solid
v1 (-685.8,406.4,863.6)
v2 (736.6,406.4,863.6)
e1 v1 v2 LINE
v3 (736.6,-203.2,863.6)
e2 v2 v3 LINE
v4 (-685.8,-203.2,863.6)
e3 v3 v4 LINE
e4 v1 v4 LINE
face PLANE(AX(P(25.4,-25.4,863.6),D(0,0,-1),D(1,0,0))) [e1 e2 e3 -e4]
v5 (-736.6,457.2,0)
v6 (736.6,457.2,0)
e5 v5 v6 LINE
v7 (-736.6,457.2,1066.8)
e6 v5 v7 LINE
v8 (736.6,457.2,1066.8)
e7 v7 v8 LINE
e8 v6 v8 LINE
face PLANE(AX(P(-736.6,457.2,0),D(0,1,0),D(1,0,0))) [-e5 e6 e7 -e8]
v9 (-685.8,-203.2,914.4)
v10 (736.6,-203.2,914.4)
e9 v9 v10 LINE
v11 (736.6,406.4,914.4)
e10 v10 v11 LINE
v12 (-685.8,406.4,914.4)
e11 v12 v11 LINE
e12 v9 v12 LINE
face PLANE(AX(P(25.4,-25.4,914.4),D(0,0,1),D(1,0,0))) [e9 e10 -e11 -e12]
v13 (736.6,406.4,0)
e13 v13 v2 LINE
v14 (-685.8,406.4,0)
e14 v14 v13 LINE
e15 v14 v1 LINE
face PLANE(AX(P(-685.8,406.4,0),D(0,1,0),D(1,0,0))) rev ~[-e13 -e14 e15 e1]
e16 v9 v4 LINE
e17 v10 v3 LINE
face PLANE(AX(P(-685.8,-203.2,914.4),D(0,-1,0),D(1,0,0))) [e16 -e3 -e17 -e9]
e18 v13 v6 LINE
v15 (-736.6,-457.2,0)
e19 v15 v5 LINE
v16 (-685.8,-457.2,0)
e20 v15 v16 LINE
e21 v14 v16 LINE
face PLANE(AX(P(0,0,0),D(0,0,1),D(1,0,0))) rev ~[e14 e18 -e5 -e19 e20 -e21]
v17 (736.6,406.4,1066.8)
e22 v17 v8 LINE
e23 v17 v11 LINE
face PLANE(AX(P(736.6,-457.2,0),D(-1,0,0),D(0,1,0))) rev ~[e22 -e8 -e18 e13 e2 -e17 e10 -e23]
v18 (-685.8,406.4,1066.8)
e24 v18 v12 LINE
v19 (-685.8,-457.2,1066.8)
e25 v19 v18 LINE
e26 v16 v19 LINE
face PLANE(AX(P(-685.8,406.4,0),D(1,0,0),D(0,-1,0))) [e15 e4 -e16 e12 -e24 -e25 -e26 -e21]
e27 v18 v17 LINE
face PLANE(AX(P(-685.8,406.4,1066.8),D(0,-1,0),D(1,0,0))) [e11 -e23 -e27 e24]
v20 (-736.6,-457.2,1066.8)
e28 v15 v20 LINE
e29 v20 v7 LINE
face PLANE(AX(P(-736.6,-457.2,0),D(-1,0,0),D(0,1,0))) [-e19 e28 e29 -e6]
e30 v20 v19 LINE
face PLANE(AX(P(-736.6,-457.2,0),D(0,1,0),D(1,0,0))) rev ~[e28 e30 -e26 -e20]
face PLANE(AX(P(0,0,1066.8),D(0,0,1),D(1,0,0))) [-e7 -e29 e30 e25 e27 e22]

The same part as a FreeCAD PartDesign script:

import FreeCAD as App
import Part
import Sketcher
from FreeCAD import Vector
Q = App.Units.Quantity


def add_polygon(sketch, points):
    """Adds a closed chain of lines whose ends are joined by coincident constraints."""
    first, n = sketch.GeometryCount, len(points)
    for a, b in zip(points, points[1:] + points[:1]):
        sketch.addGeometry(Part.LineSegment(App.Vector(*a, 0), App.Vector(*b, 0)), False)
    for i in range(n):
        sketch.addConstraint(Sketcher.Constraint("Coincident", first + i, 2, first + (i + 1) % n, 1))

doc = App.newDocument("Part")
body = doc.addObject("PartDesign::Body", "Body")

# Sketch on XY plane
sketch1 = body.newObject("Sketcher::SketchObject", "Sketch")
sketch1.AttachmentSupport = (doc.getObject("XY_Plane"), [""])
sketch1.MapMode = "FlatFace"
add_polygon(sketch1, [(-737, 457), (-737, -457), (737, -457), (737, 457)])  # lines 0-3
sketch1.addConstraint(Sketcher.Constraint("Vertical", 0))
sketch1.addConstraint(Sketcher.Constraint("Horizontal", 1))
sketch1.addConstraint(Sketcher.Constraint("Vertical", 2))
sketch1.addConstraint(Sketcher.Constraint("Horizontal", 3))
sketch1.addConstraint(Sketcher.Constraint("Symmetric", 0, 2, 2, 2, -1, 1))
sketch1.addConstraint(Sketcher.Constraint("DistanceX", 1, 1, 1, 2, Q("58 in")))
sketch1.addConstraint(Sketcher.Constraint("DistanceY", 0, 2, 0, 1, Q("36 in")))
pad1 = body.newObject("PartDesign::Pad", "Pad")
pad1.Profile = sketch1
pad1.Length = Q("42 in")

# Sketch on XY plane
sketch2 = body.newObject("Sketcher::SketchObject", "Sketch001")
sketch2.AttachmentSupport = (doc.getObject("XY_Plane"), [""])
sketch2.MapMode = "FlatFace"
sketch2.AttachmentOffset = App.Placement(Vector(0, 0, 42 * 25.4), App.Rotation())
add_polygon(sketch2, [(-686, 406), (-686, -457), (737, -457), (737, 406)])  # lines 0-3
sketch2.addConstraint(Sketcher.Constraint("Vertical", 0))
sketch2.addConstraint(Sketcher.Constraint("Horizontal", 1))
sketch2.addConstraint(Sketcher.Constraint("Vertical", 2))
sketch2.addConstraint(Sketcher.Constraint("Horizontal", 3))
sketch2.addConstraint(Sketcher.Constraint("DistanceX", 1, 1, 1, 2, Q("56 in")))
sketch2.addConstraint(Sketcher.Constraint("DistanceY", 0, 2, 0, 1, Q("34 in")))
sketch2.addConstraint(Sketcher.Constraint("DistanceX", 0, 2, -1, 1, Q("27 in")))
sketch2.addConstraint(Sketcher.Constraint("DistanceY", 0, 2, -1, 1, Q("18 in")))
pocket1 = body.newObject("PartDesign::Pocket", "Pocket")
pocket1.Profile = sketch2
pocket1.Length = Q("6 in")

# Sketch on XY plane
sketch3 = body.newObject("Sketcher::SketchObject", "Sketch002")
sketch3.AttachmentSupport = (doc.getObject("XY_Plane"), [""])
sketch3.MapMode = "FlatFace"
add_polygon(sketch3, [(-686, -457), (-686, 406), (737, 406), (737, -457)])  # lines 0-3
sketch3.addConstraint(Sketcher.Constraint("Vertical", 0))
sketch3.addConstraint(Sketcher.Constraint("Horizontal", 1))
sketch3.addConstraint(Sketcher.Constraint("Vertical", 2))
sketch3.addConstraint(Sketcher.Constraint("Horizontal", 3))
sketch3.addConstraint(Sketcher.Constraint("DistanceX", 1, 1, 1, 2, Q("56 in")))
sketch3.addConstraint(Sketcher.Constraint("DistanceY", 0, 1, 0, 2, Q("34 in")))
sketch3.addConstraint(Sketcher.Constraint("DistanceX", 0, 2, -1, 1, Q("27 in")))
sketch3.addConstraint(Sketcher.Constraint("DistanceY", -1, 1, 0, 2, Q("16 in")))
pocket2 = body.newObject("PartDesign::Pocket", "Pocket001")
pocket2.Profile = sketch3
pocket2.Length = Q("34 in")
pocket2.Reversed = True

# Sketch on XY plane
sketch4 = body.newObject("Sketcher::SketchObject", "Sketch003")
sketch4.AttachmentSupport = (doc.getObject("XY_Plane"), [""])
sketch4.MapMode = "FlatFace"
sketch4.AttachmentOffset = App.Placement(Vector(0, 0, 36 * 25.4), App.Rotation())
add_polygon(sketch4, [(-686, -203), (-686, -457), (737, -457), (737, -203)])  # lines 0-3
sketch4.addConstraint(Sketcher.Constraint("Vertical", 0))
sketch4.addConstraint(Sketcher.Constraint("Horizontal", 1))
sketch4.addConstraint(Sketcher.Constraint("Vertical", 2))
sketch4.addConstraint(Sketcher.Constraint("Horizontal", 3))
sketch4.addConstraint(Sketcher.Constraint("DistanceX", 1, 1, 1, 2, Q("56 in")))
sketch4.addConstraint(Sketcher.Constraint("DistanceY", 0, 2, 0, 1, Q("10 in")))
sketch4.addConstraint(Sketcher.Constraint("DistanceX", 0, 2, -1, 1, Q("27 in")))
sketch4.addConstraint(Sketcher.Constraint("DistanceY", 0, 2, -1, 1, Q("18 in")))
pocket3 = body.newObject("PartDesign::Pocket", "Pocket002")
pocket3.Profile = sketch4
pocket3.Type = "ThroughAll"

doc.recompute()
